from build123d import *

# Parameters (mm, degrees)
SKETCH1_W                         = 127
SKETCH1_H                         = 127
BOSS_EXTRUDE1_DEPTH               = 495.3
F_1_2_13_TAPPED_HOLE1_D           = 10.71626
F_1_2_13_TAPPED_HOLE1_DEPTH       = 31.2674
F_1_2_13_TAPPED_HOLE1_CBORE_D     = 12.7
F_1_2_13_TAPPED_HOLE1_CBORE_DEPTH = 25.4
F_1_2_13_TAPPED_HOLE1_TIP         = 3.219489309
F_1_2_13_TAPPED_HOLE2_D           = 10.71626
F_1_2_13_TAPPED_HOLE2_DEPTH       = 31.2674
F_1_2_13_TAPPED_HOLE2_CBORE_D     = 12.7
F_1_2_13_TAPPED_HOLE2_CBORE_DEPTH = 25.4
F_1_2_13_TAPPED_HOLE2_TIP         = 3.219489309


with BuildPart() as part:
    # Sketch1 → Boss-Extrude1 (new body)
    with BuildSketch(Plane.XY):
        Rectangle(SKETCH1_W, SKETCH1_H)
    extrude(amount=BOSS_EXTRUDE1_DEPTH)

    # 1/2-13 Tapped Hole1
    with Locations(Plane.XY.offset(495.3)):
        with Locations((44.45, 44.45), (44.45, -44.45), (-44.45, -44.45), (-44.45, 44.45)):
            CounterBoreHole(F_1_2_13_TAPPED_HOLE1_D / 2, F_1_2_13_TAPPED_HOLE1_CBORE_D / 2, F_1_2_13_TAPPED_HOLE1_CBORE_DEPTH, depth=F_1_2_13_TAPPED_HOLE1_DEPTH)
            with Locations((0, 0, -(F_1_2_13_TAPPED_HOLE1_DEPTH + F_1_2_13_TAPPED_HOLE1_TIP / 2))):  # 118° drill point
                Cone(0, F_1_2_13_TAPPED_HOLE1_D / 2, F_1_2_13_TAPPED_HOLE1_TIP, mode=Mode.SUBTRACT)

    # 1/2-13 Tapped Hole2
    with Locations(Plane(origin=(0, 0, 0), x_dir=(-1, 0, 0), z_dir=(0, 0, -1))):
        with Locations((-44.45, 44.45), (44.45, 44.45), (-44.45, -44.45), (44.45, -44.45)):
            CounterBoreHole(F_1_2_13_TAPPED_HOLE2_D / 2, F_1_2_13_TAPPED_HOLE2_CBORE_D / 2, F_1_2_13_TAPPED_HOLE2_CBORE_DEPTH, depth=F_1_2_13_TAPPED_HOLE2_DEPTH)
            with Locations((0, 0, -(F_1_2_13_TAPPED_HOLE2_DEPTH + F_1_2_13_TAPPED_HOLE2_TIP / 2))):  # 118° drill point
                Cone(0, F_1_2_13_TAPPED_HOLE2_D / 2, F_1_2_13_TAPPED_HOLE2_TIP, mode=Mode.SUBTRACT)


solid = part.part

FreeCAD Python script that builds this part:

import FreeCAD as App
import Part
import Sketcher

V = App.Vector
Q = App.Units.Quantity

doc = App.newDocument("Part")
body = doc.addObject("PartDesign::Body", "Body")

# Sketch on XY plane
sketch1 = body.newObject("Sketcher::SketchObject", "Sketch")
sketch1.AttachmentSupport = (doc.getObject("XY_Plane"), [""])
sketch1.MapMode = "FlatFace"
sketch1.addGeometry(Part.LineSegment(V(-64, 64, 0), V(-64, -64, 0)), False)
sketch1.addGeometry(Part.LineSegment(V(-64, -64, 0), V(64, -64, 0)), False)
sketch1.addGeometry(Part.LineSegment(V(64, -64, 0), V(64, 64, 0)), False)
sketch1.addGeometry(Part.LineSegment(V(64, 64, 0), V(-64, 64, 0)), False)
sketch1.addConstraint(Sketcher.Constraint("Coincident", 0, 2, 1, 1))
sketch1.addConstraint(Sketcher.Constraint("Coincident", 1, 2, 2, 1))
sketch1.addConstraint(Sketcher.Constraint("Coincident", 2, 2, 3, 1))
sketch1.addConstraint(Sketcher.Constraint("Coincident", 3, 2, 0, 1))
sketch1.addConstraint(Sketcher.Constraint("Vertical", 0))
sketch1.addConstraint(Sketcher.Constraint("Horizontal", 1))
sketch1.addConstraint(Sketcher.Constraint("Vertical", 2))
sketch1.addConstraint(Sketcher.Constraint("Horizontal", 3))
sketch1.addConstraint(Sketcher.Constraint("Symmetric", 0, 2, 2, 2, -1, 1))
sketch1.addConstraint(Sketcher.Constraint("Equal", 3, 0))
sketch1.addConstraint(Sketcher.Constraint("DistanceX", 1, 1, 1, 2, Q("5 in")))
pad1 = body.newObject("PartDesign::Pad", "Pad")
pad1.Profile = sketch1
pad1.Length = Q("19.5 in")

# Sketch on XY plane
sketch2 = body.newObject("Sketcher::SketchObject", "Sketch001")
sketch2.AttachmentSupport = (doc.getObject("XY_Plane"), [""])
sketch2.MapMode = "FlatFace"
sketch2.AttachmentOffset = App.Placement(V(0, 0, 19.5 * 25.4), App.Rotation())
sketch2.addGeometry(Part.Circle(V(44, 44, 0), V(0, 0, 1), 5), False)
sketch2.addGeometry(Part.Circle(V(44, -44, 0), V(0, 0, 1), 5), False)
sketch2.addGeometry(Part.Circle(V(-44, -44, 0), V(0, 0, 1), 5), False)
sketch2.addGeometry(Part.Circle(V(-44, 44, 0), V(0, 0, 1), 5), False)
sketch2.addConstraint(Sketcher.Constraint("Equal", 0, 1))
sketch2.addConstraint(Sketcher.Constraint("Equal", 1, 2))
sketch2.addConstraint(Sketcher.Constraint("Equal", 2, 3))
sketch2.addConstraint(Sketcher.Constraint("Symmetric", 0, 3, 2, 3, -1, 1))
sketch2.addConstraint(Sketcher.Constraint("Symmetric", 1, 3, 3, 3, -1, 1))
sketch2.addConstraint(Sketcher.Constraint("Symmetric", 1, 3, 2, 3, -2))
sketch2.addConstraint(Sketcher.Constraint("Diameter", 0, Q("0.4219 in")))
sketch2.addConstraint(Sketcher.Constraint("DistanceY", 1, 3, 0, 3, Q("3.5 in")))
sketch2.addConstraint(Sketcher.Constraint("DistanceX", 2, 3, 1, 3, Q("3.5 in")))
doc.recompute()
hole = body.newObject("PartDesign::Hole", "Hole")
hole.Profile = sketch2
hole.ThreadType = "None"
hole.Diameter = Q("0.4219 in")
hole.DepthType = "Dimension"
hole.Depth = Q("1.231 in")
hole.DrillPoint = "Angled"
hole.DrillPointAngle = 118
hole.HoleCutType = "Counterbore"
hole.HoleCutDiameter = Q("0.5 in")
hole.HoleCutDepth = Q("1 in")

# Sketch on XY plane
sketch3 = body.newObject("Sketcher::SketchObject", "Sketch002")
sketch3.AttachmentSupport = (doc.getObject("XY_Plane"), [""])
sketch3.MapMode = "FlatFace"
sketch3.addGeometry(Part.Circle(V(44, 44, 0), V(0, 0, 1), 5), False)
sketch3.addGeometry(Part.Circle(V(-44, 44, 0), V(0, 0, 1), 5), False)
sketch3.addGeometry(Part.Circle(V(44, -44, 0), V(0, 0, 1), 5), False)
sketch3.addGeometry(Part.Circle(V(-44, -44, 0), V(0, 0, 1), 5), False)
sketch3.addConstraint(Sketcher.Constraint("Equal", 0, 1))
sketch3.addConstraint(Sketcher.Constraint("Equal", 1, 2))
sketch3.addConstraint(Sketcher.Constraint("Equal", 2, 3))
sketch3.addConstraint(Sketcher.Constraint("Symmetric", 1, 3, 2, 3, -1, 1))
sketch3.addConstraint(Sketcher.Constraint("Symmetric", 0, 3, 3, 3, -1, 1))
sketch3.addConstraint(Sketcher.Constraint("Symmetric", 0, 3, 1, 3, -2))
sketch3.addConstraint(Sketcher.Constraint("Diameter", 0, Q("0.4219 in")))
sketch3.addConstraint(Sketcher.Constraint("DistanceX", 1, 3, 0, 3, Q("3.5 in")))
sketch3.addConstraint(Sketcher.Constraint("DistanceY", 2, 3, 0, 3, Q("3.5 in")))
doc.recompute()
hole2 = body.newObject("PartDesign::Hole", "Hole001")
hole2.Profile = sketch3
hole2.ThreadType = "None"
hole2.Diameter = Q("0.4219 in")
hole2.DepthType = "Dimension"
hole2.Depth = Q("1.231 in")
hole2.DrillPoint = "Angled"
hole2.DrillPointAngle = 118
hole2.HoleCutType = "Counterbore"
hole2.HoleCutDiameter = Q("0.5 in")
hole2.HoleCutDepth = Q("1 in")
hole2.Reversed = True

doc.recompute()
